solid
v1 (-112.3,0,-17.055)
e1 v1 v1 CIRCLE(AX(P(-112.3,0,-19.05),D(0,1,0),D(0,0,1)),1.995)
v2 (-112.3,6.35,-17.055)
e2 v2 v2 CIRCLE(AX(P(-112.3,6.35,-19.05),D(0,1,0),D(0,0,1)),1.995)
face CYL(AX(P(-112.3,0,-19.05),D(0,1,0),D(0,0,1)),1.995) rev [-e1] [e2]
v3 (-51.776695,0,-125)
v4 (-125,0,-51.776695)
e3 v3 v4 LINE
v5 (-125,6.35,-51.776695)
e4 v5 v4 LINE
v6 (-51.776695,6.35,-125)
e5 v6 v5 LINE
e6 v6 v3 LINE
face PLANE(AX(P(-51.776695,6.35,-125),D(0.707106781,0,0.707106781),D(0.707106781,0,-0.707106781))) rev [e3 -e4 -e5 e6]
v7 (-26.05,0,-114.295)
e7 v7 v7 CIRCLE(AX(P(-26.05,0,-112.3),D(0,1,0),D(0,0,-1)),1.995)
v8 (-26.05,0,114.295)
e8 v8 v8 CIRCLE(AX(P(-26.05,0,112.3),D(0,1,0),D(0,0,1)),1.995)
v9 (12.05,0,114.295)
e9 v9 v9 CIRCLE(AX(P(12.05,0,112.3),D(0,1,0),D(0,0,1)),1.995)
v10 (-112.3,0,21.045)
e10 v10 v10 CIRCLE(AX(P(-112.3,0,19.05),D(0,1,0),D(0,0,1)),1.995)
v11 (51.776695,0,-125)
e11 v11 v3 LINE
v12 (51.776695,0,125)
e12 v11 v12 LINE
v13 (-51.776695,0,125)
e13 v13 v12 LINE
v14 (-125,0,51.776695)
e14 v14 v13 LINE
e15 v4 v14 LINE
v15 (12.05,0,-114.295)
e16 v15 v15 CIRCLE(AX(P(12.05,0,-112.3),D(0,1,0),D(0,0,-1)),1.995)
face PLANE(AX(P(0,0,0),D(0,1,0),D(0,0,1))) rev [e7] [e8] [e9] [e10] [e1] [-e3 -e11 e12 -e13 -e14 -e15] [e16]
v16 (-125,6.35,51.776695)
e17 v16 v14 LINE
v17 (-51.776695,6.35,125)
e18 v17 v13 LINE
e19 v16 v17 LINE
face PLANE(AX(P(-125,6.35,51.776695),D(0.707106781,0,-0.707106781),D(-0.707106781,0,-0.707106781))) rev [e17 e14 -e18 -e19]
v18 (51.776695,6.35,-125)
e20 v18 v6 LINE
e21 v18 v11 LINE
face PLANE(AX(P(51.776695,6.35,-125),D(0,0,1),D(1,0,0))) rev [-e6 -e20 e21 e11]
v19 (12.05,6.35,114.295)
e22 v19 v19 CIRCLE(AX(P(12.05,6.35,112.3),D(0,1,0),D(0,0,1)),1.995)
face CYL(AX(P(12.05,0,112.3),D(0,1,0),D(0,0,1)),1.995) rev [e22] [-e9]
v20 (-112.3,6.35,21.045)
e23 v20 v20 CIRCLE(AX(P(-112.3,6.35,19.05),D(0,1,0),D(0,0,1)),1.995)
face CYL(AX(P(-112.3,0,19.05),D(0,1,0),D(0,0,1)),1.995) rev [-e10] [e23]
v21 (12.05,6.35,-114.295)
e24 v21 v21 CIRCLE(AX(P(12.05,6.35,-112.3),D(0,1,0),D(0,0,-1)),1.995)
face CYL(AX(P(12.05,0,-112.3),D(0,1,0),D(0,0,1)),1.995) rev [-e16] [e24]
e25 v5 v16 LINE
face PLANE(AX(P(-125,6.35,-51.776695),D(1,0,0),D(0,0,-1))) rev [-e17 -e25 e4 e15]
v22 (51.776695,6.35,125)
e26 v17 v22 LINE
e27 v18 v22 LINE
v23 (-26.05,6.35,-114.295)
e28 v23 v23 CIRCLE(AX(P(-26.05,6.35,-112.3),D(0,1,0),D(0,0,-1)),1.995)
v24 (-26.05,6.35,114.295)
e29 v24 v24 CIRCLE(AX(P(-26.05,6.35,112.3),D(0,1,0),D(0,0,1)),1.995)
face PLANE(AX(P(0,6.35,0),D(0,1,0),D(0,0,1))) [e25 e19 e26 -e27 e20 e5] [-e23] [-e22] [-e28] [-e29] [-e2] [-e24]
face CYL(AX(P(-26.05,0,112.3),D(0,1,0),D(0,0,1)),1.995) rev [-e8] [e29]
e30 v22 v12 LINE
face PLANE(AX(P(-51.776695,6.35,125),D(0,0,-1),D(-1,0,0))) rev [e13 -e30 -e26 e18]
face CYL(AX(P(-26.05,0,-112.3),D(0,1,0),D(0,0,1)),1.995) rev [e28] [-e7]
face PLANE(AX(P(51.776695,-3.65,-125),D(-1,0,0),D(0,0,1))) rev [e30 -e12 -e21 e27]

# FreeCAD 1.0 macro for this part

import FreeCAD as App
import Part
import Sketcher

V = App.Vector

doc = App.newDocument("Part")
params = doc.addObject("Spreadsheet::Sheet", "Params")
for row, (alias, value) in enumerate([
    ("pad1_length", "6.35 mm"),
    ("sketch2_diameter", "3.99 mm"),
    ("sketch3_diameter", "3.99 mm"),
    ("sketch4_height", "250 mm"),
    ("pocket3_length", "10 mm"),
], start=1):
    params.set(f"A{row}", alias)
    params.set(f"B{row}", "=" + value)
    params.setAlias(f"B{row}", alias)

body = doc.addObject("PartDesign::Body", "Body")

# Sketch on XZ plane
sketch1 = doc.addObject("Sketcher::SketchObject", "Sketch")
body.addObject(sketch1)
sketch1.AttachmentSupport = (doc.XZ_Plane, [""])
sketch1.MapMode = "FlatFace"
sketch1.addGeometry([
    Part.LineSegment(V(125, -52, 0), V(52, -125, 0)),  # 0
    Part.LineSegment(V(52, -125, 0), V(-52, -125, 0)),  # 1
    Part.LineSegment(V(-52, -125, 0), V(-125, -52, 0)),  # 2
    Part.LineSegment(V(-125, -52, 0), V(-125, 52, 0)),  # 3
    Part.LineSegment(V(-125, 52, 0), V(-52, 125, 0)),  # 4
    Part.LineSegment(V(-52, 125, 0), V(52, 125, 0)),  # 5
    Part.LineSegment(V(52, 125, 0), V(125, 52, 0)),  # 6
    Part.LineSegment(V(125, 52, 0), V(125, -52, 0)),  # 7
], False)
sketch1.addConstraint([
    Sketcher.Constraint("Coincident", 0, 2, 1, 1),
    Sketcher.Constraint("Coincident", 1, 2, 2, 1),
    Sketcher.Constraint("Coincident", 2, 2, 3, 1),
    Sketcher.Constraint("Coincident", 3, 2, 4, 1),
    Sketcher.Constraint("Coincident", 4, 2, 5, 1),
    Sketcher.Constraint("Coincident", 5, 2, 6, 1),
    Sketcher.Constraint("Coincident", 6, 2, 7, 1),
    Sketcher.Constraint("Coincident", 7, 2, 0, 1),
    Sketcher.Constraint("Horizontal", 1),
    Sketcher.Constraint("Vertical", 3),
    Sketcher.Constraint("Horizontal", 5),
    Sketcher.Constraint("Vertical", 7),
    Sketcher.Constraint("Symmetric", 0, 2, 4, 2, -1, 1),
    Sketcher.Constraint("Symmetric", 2, 2, 6, 2, -1, 1),
    Sketcher.Constraint("Perpendicular", 0, 2),
    Sketcher.Constraint("Perpendicular", 2, 4),
    Sketcher.Constraint("Perpendicular", 4, 6),
    Sketcher.Constraint("Horizontal", 3, 2, 6, 2),
    Sketcher.Constraint("Vertical", 1, 2, 4, 2),
    Sketcher.Constraint("Equal", 5, 3),
    Sketcher.Constraint("DistanceY", 0, 2, -1, 1, 125.0),
    Sketcher.Constraint("DistanceX", 1, 2, 1, 1, 103.553391),
])
pad1 = doc.addObject("PartDesign::Pad", "Pad")
body.addObject(pad1)
pad1.Profile = sketch1
pad1.setExpression("Length", "Params.pad1_length")
pad1.Reversed = True

# Sketch on XZ plane
sketch2 = doc.addObject("Sketcher::SketchObject", "Sketch001")
body.addObject(sketch2)
sketch2.AttachmentSupport = (doc.XZ_Plane, [""])
sketch2.MapMode = "FlatFace"
sketch2.AttachmentOffset = App.Placement(V(0, 0, -6.35), App.Rotation())
sketch2.addGeometry([
    Part.Circle(V(-26.1, 112.3, 0), V(0, 0, 1), 2),
    Part.Circle(V(12.1, 112.3, 0), V(0, 0, 1), 2),
    Part.Circle(V(12.1, -112.3, 0), V(0, 0, 1), 2),
    Part.Circle(V(-26.1, -112.3, 0), V(0, 0, 1), 2),
], False)
sketch2.addConstraint([
    Sketcher.Constraint("Equal", 0, 1),
    Sketcher.Constraint("Equal", 1, 2),
    Sketcher.Constraint("Equal", 2, 3),
    Sketcher.Constraint("Symmetric", 1, 3, 2, 3, -1),
    Sketcher.Constraint("Symmetric", 0, 3, 3, 3, -1),
    Sketcher.Constraint("Horizontal", 0, 3, 1, 3),
    Sketcher.Constraint("Diameter", 0, 3.99),
    Sketcher.Constraint("DistanceY", -1, 1, 0, 3, 112.3),
    Sketcher.Constraint("DistanceX", 0, 3, 1, 3, 38.1),
    Sketcher.Constraint("DistanceX", 0, 3, -1, 1, 26.05),
])
sketch2.setExpression("Constraints[6]", "Params.sketch2_diameter")
pocket1 = doc.addObject("PartDesign::Pocket", "Pocket")
body.addObject(pocket1)
pocket1.Profile = sketch2
pocket1.Type = "ThroughAll"
pocket1.Reversed = True

# Sketch on XZ plane
sketch3 = doc.addObject("Sketcher::SketchObject", "Sketch002")
body.addObject(sketch3)
sketch3.AttachmentSupport = (doc.XZ_Plane, [""])
sketch3.MapMode = "FlatFace"
sketch3.AttachmentOffset = App.Placement(V(0, 0, -6.35), App.Rotation())
sketch3.addGeometry([
    Part.Circle(V(-112.3, -19.1, 0), V(0, 0, 1), 2),
    Part.Circle(V(-112.3, 19.1, 0), V(0, 0, 1), 2),
], False)
sketch3.addConstraint([
    Sketcher.Constraint("Equal", 0, 1),
    Sketcher.Constraint("Symmetric", 0, 3, 1, 3, -1),
    Sketcher.Constraint("Diameter", 0, 3.99),
    Sketcher.Constraint("DistanceX", 0, 3, -1, 1, 112.3),
    Sketcher.Constraint("DistanceY", 0, 3, 1, 3, 38.1),
])
sketch3.setExpression("Constraints[2]", "Params.sketch3_diameter")
pocket2 = doc.addObject("PartDesign::Pocket", "Pocket001")
body.addObject(pocket2)
pocket2.Profile = sketch3
pocket2.Type = "ThroughAll"
pocket2.Reversed = True

# Sketch on XZ plane
sketch4 = doc.addObject("Sketcher::SketchObject", "Sketch003")
body.addObject(sketch4)
sketch4.AttachmentSupport = (doc.XZ_Plane, [""])
sketch4.MapMode = "FlatFace"
sketch4.AttachmentOffset = App.Placement(V(0, 0, -6.35), App.Rotation())
sketch4.addGeometry([
    Part.LineSegment(V(52, 125, 0), V(125, 52, 0)),
    Part.LineSegment(V(125, 52, 0), V(125, -52, 0)),
    Part.LineSegment(V(125, -52, 0), V(52, -125, 0)),
    Part.LineSegment(V(52, -125, 0), V(52, 125, 0)),
], False)
sketch4.addConstraint([
    Sketcher.Constraint("Coincident", 0, 2, 1, 1),
    Sketcher.Constraint("Coincident", 1, 2, 2, 1),
    Sketcher.Constraint("Coincident", 2, 2, 3, 1),
    Sketcher.Constraint("Coincident", 3, 2, 0, 1),
    Sketcher.Constraint("Vertical", 1),
    Sketcher.Constraint("Vertical", 3),
    Sketcher.Constraint("Perpendicular", 0, 2),
    Sketcher.Constraint("Equal", 0, 2),
    Sketcher.Constraint("DistanceY", 3, 1, 3, 2, 250.0),
    Sketcher.Constraint("DistanceX", -1, 1, 0, 2, 125.0),
    Sketcher.Constraint("DistanceY", 2, 2, -1, 1, 125.0),
    Sketcher.Constraint("DistanceY", 1, 2, 1, 1, 103.553391),
])
sketch4.setExpression("Constraints[8]", "Params.sketch4_height")
pocket3 = doc.addObject("PartDesign::Pocket", "Pocket002")
body.addObject(pocket3)
pocket3.Profile = sketch4
pocket3.setExpression("Length", "Params.pocket3_length")
pocket3.Reversed = True

doc.recompute()
